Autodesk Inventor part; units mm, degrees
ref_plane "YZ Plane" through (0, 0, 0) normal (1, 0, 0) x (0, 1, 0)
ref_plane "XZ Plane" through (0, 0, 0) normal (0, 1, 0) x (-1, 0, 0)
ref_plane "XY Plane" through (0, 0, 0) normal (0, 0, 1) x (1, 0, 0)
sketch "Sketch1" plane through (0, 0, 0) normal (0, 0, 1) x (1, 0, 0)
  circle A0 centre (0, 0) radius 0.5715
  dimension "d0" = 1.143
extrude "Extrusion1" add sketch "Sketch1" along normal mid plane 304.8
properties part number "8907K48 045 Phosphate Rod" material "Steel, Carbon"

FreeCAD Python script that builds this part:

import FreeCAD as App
import Part
import Sketcher
from FreeCAD import Vector
Q = App.Units.Quantity

doc = App.newDocument("Part")
body = doc.addObject("PartDesign::Body", "Body")

# Sketch on XY plane
sketch1 = body.newObject("Sketcher::SketchObject", "Sketch")
sketch1.AttachmentSupport = (doc.getObject("XY_Plane"), [""])
sketch1.MapMode = "FlatFace"
sketch1.addGeometry(Part.Circle(Vector(0, 0, 0), Vector(0, 0, 1), 0.6), False)
sketch1.addConstraint([
    Sketcher.Constraint("Coincident", 0, 3, -1, 1),
    Sketcher.Constraint("Diameter", 0, Q("0.045 in")),
])
pad1 = body.newObject("PartDesign::Pad", "Pad")
pad1.Profile = sketch1
pad1.Length = Q("12 in")
pad1.Midplane = True

doc.recompute()
